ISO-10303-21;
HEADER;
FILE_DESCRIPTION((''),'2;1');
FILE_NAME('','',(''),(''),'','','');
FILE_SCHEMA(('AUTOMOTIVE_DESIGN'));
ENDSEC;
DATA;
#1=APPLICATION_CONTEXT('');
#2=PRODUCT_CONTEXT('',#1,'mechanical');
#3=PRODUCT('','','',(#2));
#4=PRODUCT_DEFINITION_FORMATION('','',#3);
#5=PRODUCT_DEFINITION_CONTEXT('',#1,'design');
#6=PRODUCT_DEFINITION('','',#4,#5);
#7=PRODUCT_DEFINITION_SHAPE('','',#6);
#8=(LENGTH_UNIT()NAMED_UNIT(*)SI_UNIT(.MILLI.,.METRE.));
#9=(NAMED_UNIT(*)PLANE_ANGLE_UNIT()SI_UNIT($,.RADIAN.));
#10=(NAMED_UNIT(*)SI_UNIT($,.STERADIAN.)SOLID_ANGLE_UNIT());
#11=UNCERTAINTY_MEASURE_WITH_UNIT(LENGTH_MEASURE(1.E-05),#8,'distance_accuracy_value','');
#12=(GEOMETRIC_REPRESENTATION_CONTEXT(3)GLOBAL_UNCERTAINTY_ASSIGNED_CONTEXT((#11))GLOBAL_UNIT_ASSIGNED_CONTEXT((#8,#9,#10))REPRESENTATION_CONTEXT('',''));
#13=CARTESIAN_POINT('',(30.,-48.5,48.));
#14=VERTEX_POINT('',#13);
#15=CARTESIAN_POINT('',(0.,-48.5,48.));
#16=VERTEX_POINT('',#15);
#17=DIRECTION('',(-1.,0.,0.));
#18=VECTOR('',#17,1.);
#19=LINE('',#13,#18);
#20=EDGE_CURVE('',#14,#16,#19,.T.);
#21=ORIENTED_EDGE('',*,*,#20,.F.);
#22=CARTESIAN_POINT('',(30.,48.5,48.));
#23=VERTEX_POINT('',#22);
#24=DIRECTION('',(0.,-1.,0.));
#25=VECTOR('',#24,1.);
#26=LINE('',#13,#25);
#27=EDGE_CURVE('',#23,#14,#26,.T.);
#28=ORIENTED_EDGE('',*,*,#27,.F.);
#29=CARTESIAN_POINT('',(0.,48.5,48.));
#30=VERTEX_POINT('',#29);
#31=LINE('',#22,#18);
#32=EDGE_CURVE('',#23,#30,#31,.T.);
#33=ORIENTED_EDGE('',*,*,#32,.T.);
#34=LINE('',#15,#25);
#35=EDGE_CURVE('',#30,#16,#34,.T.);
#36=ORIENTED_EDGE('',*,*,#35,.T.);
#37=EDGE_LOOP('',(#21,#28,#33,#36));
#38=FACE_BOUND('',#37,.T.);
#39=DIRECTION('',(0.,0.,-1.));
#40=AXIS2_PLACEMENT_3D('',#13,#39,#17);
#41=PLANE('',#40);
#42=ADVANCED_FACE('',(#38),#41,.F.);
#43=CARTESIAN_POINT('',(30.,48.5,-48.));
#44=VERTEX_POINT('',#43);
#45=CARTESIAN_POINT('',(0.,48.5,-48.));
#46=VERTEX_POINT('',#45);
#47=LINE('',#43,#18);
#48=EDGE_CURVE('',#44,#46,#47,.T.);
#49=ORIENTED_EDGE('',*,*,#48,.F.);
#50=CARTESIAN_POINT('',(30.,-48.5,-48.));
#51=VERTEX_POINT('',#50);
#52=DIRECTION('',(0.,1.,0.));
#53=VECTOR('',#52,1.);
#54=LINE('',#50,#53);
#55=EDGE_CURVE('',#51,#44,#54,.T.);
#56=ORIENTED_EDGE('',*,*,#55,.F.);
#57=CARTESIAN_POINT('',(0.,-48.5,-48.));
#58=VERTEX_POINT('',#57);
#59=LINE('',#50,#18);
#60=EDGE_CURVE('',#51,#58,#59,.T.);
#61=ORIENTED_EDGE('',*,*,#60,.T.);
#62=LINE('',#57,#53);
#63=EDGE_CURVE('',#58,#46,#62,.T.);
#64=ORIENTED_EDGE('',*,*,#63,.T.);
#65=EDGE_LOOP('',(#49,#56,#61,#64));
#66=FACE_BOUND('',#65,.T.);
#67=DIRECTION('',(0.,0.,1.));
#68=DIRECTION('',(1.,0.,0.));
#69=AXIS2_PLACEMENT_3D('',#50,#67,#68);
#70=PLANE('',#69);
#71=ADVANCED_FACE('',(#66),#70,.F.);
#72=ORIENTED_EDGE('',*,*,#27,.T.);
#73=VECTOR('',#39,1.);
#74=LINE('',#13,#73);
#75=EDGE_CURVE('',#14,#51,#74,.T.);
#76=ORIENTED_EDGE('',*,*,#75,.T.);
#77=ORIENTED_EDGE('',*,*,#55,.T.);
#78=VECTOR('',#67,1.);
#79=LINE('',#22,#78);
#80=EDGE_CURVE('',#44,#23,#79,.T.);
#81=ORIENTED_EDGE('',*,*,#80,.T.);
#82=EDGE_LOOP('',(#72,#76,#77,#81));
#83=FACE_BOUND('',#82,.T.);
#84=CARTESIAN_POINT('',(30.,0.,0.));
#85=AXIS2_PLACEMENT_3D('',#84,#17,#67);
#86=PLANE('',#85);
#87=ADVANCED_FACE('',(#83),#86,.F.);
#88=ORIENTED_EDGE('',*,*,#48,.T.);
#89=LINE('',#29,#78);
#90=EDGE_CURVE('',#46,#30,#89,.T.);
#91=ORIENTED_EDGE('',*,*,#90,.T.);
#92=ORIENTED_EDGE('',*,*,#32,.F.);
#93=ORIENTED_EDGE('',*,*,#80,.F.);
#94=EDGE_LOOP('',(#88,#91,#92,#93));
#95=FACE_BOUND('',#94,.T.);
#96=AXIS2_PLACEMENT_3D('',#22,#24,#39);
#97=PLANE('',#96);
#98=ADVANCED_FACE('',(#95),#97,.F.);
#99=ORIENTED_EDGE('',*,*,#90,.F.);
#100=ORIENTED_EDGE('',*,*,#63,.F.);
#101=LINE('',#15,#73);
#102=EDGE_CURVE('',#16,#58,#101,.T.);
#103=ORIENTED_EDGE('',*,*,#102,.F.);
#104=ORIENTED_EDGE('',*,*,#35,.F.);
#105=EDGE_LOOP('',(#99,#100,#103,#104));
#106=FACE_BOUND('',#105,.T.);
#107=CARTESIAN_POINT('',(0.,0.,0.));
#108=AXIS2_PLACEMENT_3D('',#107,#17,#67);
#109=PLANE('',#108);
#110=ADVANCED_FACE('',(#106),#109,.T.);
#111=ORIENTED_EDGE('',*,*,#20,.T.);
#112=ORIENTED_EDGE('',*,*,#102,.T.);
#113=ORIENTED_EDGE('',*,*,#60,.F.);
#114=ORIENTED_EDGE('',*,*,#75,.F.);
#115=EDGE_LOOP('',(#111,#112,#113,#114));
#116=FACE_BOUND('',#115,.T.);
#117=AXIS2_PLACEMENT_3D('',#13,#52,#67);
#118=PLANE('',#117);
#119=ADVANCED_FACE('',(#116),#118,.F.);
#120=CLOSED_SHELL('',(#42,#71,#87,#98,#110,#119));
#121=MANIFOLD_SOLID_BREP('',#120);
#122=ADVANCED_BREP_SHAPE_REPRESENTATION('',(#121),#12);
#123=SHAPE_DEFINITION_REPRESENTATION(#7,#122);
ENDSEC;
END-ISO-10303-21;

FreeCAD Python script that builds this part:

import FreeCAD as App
import Part
import Sketcher
Q = App.Units.Quantity

doc = App.newDocument("Part")
params = doc.addObject("Spreadsheet::Sheet", "Params")
for row, (alias, value) in enumerate([
    ("sketch1_width", "97 mm"),
    ("sketch1_height", "96 mm"),
    ("pad1_length", "30 mm"),
], start=1):
    params.set(f"A{row}", alias)
    params.set(f"B{row}", "=" + value)
    params.setAlias(f"B{row}", alias)

body = doc.addObject("PartDesign::Body", "Body")

sketch1 = body.newObject("Sketcher::SketchObject", "Sketch")
sketch1.AttachmentSupport = (doc.getObject("YZ_Plane"), [""])
sketch1.MapMode = "FlatFace"
sketch1.addGeometry([
    Part.LineSegment(App.Vector(48.5, 48, 0), App.Vector(-48.5, 48, 0)),
    Part.LineSegment(App.Vector(-48.5, 48, 0), App.Vector(-48.5, -48, 0)),
    Part.LineSegment(App.Vector(-48.5, -48, 0), App.Vector(48.5, -48, 0)),
    Part.LineSegment(App.Vector(48.5, -48, 0), App.Vector(48.5, 48, 0)),
], False)
sketch1.addConstraint([
    Sketcher.Constraint("Coincident", 0, 2, 1, 1),
    Sketcher.Constraint("Coincident", 1, 2, 2, 1),
    Sketcher.Constraint("Coincident", 2, 2, 3, 1),
    Sketcher.Constraint("Coincident", 3, 2, 0, 1),
    Sketcher.Constraint("Horizontal", 0),
    Sketcher.Constraint("Vertical", 1),
    Sketcher.Constraint("Horizontal", 2),
    Sketcher.Constraint("Vertical", 3),
    Sketcher.Constraint("Symmetric", 0, 2, 2, 2, -1, 1),
    Sketcher.Constraint("DistanceX", 0, 2, 0, 1, Q("97 mm")),
    Sketcher.Constraint("DistanceY", 1, 2, 1, 1, Q("96 mm")),
])
sketch1.setExpression("Constraints[9]", "Params.sketch1_width")
sketch1.setExpression("Constraints[10]", "Params.sketch1_height")
pad1 = body.newObject("PartDesign::Pad", "Pad")
pad1.Profile = sketch1
pad1.setExpression("Length", "Params.pad1_length")

doc.recompute()
